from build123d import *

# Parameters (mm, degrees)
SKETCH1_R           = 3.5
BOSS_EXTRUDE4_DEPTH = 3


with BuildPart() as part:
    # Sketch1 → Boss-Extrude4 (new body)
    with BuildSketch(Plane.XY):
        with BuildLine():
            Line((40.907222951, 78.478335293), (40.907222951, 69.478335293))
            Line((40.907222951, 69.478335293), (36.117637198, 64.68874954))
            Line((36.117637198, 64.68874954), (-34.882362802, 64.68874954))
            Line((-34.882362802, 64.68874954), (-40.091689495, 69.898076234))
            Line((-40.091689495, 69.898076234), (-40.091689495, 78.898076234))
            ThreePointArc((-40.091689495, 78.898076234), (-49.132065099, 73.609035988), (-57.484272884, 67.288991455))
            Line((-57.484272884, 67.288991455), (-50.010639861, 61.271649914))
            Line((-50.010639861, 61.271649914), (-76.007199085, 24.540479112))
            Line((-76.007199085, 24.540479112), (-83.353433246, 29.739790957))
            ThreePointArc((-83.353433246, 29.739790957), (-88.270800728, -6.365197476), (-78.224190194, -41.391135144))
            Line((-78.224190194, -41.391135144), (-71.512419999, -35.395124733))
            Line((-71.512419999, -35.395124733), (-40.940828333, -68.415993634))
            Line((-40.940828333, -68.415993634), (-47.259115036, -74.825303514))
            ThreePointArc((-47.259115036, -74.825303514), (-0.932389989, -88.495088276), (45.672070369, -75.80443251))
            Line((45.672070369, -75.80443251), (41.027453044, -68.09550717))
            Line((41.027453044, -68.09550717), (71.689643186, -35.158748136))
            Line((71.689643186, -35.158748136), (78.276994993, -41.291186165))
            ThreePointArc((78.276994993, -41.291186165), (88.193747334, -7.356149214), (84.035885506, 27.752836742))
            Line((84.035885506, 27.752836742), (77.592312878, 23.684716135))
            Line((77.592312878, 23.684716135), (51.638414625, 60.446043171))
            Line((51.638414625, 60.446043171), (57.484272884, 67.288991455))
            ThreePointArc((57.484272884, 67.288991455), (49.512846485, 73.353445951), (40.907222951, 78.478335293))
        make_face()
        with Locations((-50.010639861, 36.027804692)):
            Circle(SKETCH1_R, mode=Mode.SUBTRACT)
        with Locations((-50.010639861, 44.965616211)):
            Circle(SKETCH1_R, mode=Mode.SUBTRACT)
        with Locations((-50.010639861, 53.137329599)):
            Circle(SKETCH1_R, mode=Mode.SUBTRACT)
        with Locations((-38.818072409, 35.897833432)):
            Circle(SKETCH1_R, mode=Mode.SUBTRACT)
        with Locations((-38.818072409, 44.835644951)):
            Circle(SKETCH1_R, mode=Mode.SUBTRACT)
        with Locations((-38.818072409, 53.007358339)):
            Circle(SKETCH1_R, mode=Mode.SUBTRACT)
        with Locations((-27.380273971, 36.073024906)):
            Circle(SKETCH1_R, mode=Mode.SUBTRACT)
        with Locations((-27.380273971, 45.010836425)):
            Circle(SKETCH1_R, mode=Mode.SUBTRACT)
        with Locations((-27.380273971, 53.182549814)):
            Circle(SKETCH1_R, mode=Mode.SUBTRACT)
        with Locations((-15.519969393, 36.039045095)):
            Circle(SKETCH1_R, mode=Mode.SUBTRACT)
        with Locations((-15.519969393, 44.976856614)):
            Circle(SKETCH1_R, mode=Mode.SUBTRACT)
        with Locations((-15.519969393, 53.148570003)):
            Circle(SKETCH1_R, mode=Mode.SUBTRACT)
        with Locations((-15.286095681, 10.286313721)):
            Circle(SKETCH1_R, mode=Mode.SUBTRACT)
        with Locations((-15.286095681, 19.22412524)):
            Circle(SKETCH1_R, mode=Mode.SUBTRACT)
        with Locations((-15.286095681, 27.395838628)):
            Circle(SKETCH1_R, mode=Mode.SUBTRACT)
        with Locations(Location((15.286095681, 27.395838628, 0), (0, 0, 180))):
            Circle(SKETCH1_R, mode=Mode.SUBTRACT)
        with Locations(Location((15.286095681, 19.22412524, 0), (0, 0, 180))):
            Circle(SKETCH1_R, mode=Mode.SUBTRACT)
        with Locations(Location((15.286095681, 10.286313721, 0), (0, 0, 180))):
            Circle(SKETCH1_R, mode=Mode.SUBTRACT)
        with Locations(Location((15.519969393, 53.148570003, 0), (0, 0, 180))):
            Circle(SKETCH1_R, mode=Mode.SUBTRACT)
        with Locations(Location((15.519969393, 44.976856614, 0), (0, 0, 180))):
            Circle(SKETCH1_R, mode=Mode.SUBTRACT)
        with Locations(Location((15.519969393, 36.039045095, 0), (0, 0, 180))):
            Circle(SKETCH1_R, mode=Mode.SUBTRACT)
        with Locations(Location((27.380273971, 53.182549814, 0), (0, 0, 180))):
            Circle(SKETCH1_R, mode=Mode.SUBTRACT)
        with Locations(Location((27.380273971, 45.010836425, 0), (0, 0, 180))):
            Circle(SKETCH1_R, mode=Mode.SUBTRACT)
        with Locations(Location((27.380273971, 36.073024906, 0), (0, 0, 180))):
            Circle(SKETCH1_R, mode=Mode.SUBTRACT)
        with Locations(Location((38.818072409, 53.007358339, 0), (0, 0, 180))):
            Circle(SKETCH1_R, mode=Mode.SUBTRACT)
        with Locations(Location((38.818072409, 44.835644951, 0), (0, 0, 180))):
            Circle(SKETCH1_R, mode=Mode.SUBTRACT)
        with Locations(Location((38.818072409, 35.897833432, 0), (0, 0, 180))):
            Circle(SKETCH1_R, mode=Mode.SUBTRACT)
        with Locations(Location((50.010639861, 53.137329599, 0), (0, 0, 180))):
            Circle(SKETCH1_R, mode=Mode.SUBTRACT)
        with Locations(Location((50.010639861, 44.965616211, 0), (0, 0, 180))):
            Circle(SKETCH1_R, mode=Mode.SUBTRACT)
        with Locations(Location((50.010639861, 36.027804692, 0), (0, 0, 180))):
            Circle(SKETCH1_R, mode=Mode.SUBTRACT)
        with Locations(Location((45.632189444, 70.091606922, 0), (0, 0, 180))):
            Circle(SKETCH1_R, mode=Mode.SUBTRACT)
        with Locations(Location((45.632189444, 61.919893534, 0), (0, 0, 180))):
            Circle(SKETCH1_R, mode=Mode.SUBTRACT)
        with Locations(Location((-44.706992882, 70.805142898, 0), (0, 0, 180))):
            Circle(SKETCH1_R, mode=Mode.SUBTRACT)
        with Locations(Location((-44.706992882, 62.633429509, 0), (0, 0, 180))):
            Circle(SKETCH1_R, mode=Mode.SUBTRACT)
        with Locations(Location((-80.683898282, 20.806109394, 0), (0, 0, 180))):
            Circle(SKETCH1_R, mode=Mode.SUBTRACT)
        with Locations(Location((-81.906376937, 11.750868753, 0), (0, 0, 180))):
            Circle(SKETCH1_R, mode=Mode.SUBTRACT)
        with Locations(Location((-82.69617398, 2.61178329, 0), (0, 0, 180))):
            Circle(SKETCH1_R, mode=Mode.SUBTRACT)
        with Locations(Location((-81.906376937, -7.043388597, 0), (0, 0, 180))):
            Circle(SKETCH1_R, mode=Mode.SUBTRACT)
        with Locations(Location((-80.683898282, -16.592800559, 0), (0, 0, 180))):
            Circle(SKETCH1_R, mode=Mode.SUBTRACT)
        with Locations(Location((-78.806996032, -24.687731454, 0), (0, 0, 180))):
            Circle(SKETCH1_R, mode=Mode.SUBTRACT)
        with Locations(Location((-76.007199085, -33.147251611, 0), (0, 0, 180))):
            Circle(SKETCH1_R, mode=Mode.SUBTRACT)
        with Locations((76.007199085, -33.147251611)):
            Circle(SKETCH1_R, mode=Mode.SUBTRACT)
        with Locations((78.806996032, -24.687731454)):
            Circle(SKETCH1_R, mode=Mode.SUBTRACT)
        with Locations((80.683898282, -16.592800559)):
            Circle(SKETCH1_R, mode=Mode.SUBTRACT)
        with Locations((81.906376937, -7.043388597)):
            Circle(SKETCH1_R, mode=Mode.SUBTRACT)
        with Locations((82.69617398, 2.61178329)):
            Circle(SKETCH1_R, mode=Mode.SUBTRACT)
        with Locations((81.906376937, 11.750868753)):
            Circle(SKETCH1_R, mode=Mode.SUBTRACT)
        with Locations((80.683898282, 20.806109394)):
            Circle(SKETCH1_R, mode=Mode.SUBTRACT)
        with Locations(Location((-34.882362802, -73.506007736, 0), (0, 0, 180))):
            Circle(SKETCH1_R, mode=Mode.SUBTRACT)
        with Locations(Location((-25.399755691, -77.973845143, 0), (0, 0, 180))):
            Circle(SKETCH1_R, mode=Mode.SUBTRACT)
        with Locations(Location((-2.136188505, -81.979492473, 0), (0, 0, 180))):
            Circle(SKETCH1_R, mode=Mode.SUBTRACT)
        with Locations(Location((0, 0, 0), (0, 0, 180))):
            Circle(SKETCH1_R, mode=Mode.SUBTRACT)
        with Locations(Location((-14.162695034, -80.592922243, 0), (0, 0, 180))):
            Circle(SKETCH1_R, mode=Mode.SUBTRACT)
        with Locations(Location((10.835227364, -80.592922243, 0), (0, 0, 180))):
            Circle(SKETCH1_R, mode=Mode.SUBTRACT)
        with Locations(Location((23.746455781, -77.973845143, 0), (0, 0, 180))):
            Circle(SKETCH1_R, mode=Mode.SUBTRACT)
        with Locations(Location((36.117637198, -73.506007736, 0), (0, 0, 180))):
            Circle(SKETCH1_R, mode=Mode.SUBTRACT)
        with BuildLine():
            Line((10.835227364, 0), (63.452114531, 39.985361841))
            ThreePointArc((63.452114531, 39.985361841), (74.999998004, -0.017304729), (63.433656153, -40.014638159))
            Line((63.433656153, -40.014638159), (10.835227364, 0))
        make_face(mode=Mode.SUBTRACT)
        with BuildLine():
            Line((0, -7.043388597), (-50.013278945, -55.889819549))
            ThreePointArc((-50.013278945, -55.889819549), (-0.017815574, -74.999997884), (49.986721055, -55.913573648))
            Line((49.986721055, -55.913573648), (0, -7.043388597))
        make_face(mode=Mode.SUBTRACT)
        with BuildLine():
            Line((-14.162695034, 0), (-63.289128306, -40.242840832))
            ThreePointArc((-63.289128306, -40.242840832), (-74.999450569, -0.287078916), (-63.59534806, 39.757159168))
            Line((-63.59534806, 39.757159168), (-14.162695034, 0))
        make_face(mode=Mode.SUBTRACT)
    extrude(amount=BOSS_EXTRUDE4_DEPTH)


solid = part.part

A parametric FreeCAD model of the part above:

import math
import FreeCAD as App
import Part
import Sketcher
Q = App.Units.Quantity

doc = App.newDocument("Part")
body = doc.addObject("PartDesign::Body", "Body")

sketch1 = body.newObject("Sketcher::SketchObject", "Sketch")
sketch1.AttachmentSupport = (doc.getObject("XY_Plane"), [""])
sketch1.MapMode = "FlatFace"
sketch1.addGeometry([
    Part.LineSegment(App.Vector(40.907223, 78.478335, 0), App.Vector(40.907223, 69.478335, 0)),
    Part.LineSegment(App.Vector(40.907223, 69.478335, 0), App.Vector(36.117637, 64.68875, 0)),
    Part.LineSegment(App.Vector(36.117637, 64.68875, 0), App.Vector(-34.882363, 64.68875, 0)),
    Part.LineSegment(App.Vector(-34.882363, 64.68875, 0), App.Vector(-40.091689, 69.898076, 0)),
    Part.LineSegment(App.Vector(-40.091689, 69.898076, 0), App.Vector(-40.091689, 78.898076, 0)),
    Part.ArcOfCircle(Part.Circle(App.Vector(0, 0, 0), App.Vector(0, 0, 1), 88.5), math.radians(116.937188), math.radians(130.506914)),
    Part.LineSegment(App.Vector(-57.484273, 67.288991, 0), App.Vector(-50.01064, 61.27165, 0)),
    Part.LineSegment(App.Vector(-50.01064, 61.27165, 0), App.Vector(-76.007199, 24.540479, 0)),
    Part.LineSegment(App.Vector(-76.007199, 24.540479, 0), App.Vector(-83.353433, 29.739791, 0)),
    Part.ArcOfCircle(Part.Circle(App.Vector(0, 0, 0), App.Vector(0, 0, 1), 88.5), math.radians(160.364035), math.radians(207.884871)),
    Part.LineSegment(App.Vector(-78.22419, -41.391135, 0), App.Vector(-71.51242, -35.395125, 0)),
    Part.LineSegment(App.Vector(-71.51242, -35.395125, 0), App.Vector(-40.940828, -68.415994, 0)),
    Part.LineSegment(App.Vector(-40.940828, -68.415994, 0), App.Vector(-47.259115, -74.825304, 0)),
    Part.ArcOfCircle(Part.Circle(App.Vector(0, 0, 0), App.Vector(0, 0, 1), 88.5), math.radians(-122.276207), math.radians(-58.931092)),
    Part.LineSegment(App.Vector(45.67207, -75.804433, 0), App.Vector(41.027453, -68.095507, 0)),
    Part.LineSegment(App.Vector(41.027453, -68.095507, 0), App.Vector(71.689643, -35.158748, 0)),
    Part.LineSegment(App.Vector(71.689643, -35.158748, 0), App.Vector(78.276995, -41.291186, 0)),
    Part.ArcOfCircle(Part.Circle(App.Vector(0, 0, 0), App.Vector(0, 0, 1), 88.5), math.radians(-27.811688), math.radians(18.275797)),
    Part.LineSegment(App.Vector(84.035886, 27.752837, 0), App.Vector(77.592313, 23.684716, 0)),
    Part.LineSegment(App.Vector(77.592313, 23.684716, 0), App.Vector(51.638415, 60.446043, 0)),
    Part.LineSegment(App.Vector(51.638415, 60.446043, 0), App.Vector(57.484273, 67.288991, 0)),
    Part.ArcOfCircle(Part.Circle(App.Vector(0, 0, 0), App.Vector(0, 0, 1), 88.5), math.radians(49.493086), math.radians(62.468997)),
    Part.Circle(App.Vector(-25.399756, -77.973845, 0), App.Vector(0, 0, 1), 3.5),
    Part.Circle(App.Vector(-34.882363, -73.506008, 0), App.Vector(0, 0, 1), 3.5),
    Part.Circle(App.Vector(-14.162695, -80.592922, 0), App.Vector(0, 0, 1), 3.5),
    Part.Circle(App.Vector(-2.136189, -81.979492, 0), App.Vector(0, 0, 1), 3.5),
    Part.Circle(App.Vector(-76.007199, -33.147252, 0), App.Vector(0, 0, 1), 3.5),
    Part.Circle(App.Vector(-78.806996, -24.687731, 0), App.Vector(0, 0, 1), 3.5),
    Part.Circle(App.Vector(-80.683898, -16.592801, 0), App.Vector(0, 0, 1), 3.5),
    Part.Circle(App.Vector(-81.906377, -7.043389, 0), App.Vector(0, 0, 1), 3.5),
    Part.LineSegment(App.Vector(-50.013279, -55.88982, 0), App.Vector(0, -7.043389, 0)),
    Part.LineSegment(App.Vector(0, -7.043389, 0), App.Vector(49.986721, -55.913574, 0)),
    Part.ArcOfCircle(Part.Circle(App.Vector(0, 0, 0), App.Vector(0, 0, 1), 75), math.radians(-131.823926), math.radians(-48.203294)),
    Part.Circle(App.Vector(10.835227, -80.592922, 0), App.Vector(0, 0, 1), 3.5),
    Part.Circle(App.Vector(23.746456, -77.973845, 0), App.Vector(0, 0, 1), 3.5),
    Part.Circle(App.Vector(36.117637, -73.506008, 0), App.Vector(0, 0, 1), 3.5),
    Part.Circle(App.Vector(76.007199, -33.147252, 0), App.Vector(0, 0, 1), 3.5),
    Part.Circle(App.Vector(78.806996, -24.687731, 0), App.Vector(0, 0, 1), 3.5),
    Part.Circle(App.Vector(80.683898, -16.592801, 0), App.Vector(0, 0, 1), 3.5),
    Part.Circle(App.Vector(81.906377, -7.043389, 0), App.Vector(0, 0, 1), 3.5),
    Part.Circle(App.Vector(-82.696174, 2.611783, 0), App.Vector(0, 0, 1), 3.5),
    Part.Circle(App.Vector(-81.906377, 11.750869, 0), App.Vector(0, 0, 1), 3.5),
    Part.LineSegment(App.Vector(-63.595348, 39.757159, 0), App.Vector(-14.162695, 0, 0)),
    Part.LineSegment(App.Vector(-14.162695, 0, 0), App.Vector(-63.289128, -40.242841, 0)),
    Part.ArcOfCircle(Part.Circle(App.Vector(0, 0, 0), App.Vector(0, 0, 1), 75), math.radians(147.988095), math.radians(212.45053)),
    Part.Circle(App.Vector(-80.683898, 20.806109, 0), App.Vector(0, 0, 1), 3.5),
    Part.Circle(App.Vector(-15.286096, 10.286314, 0), App.Vector(0, 0, 1), 3.5),
    Part.Circle(App.Vector(-15.286096, 19.224125, 0), App.Vector(0, 0, 1), 3.5),
    Part.Circle(App.Vector(-15.286096, 27.395839, 0), App.Vector(0, 0, 1), 3.5),
    Part.Circle(App.Vector(-50.01064, 36.027805, 0), App.Vector(0, 0, 1), 3.5),
    Part.Circle(App.Vector(-50.01064, 44.965616, 0), App.Vector(0, 0, 1), 3.5),
    Part.Circle(App.Vector(-50.01064, 53.13733, 0), App.Vector(0, 0, 1), 3.5),
    Part.Circle(App.Vector(-44.706993, 62.63343, 0), App.Vector(0, 0, 1), 3.5),
    Part.Circle(App.Vector(-44.706993, 70.805143, 0), App.Vector(0, 0, 1), 3.5),
    Part.Circle(App.Vector(-38.818072, 35.897833, 0), App.Vector(0, 0, 1), 3.5),
    Part.Circle(App.Vector(-27.380274, 36.073025, 0), App.Vector(0, 0, 1), 3.5),
    Part.Circle(App.Vector(-38.818072, 44.835645, 0), App.Vector(0, 0, 1), 3.5),
    Part.Circle(App.Vector(-38.818072, 53.007358, 0), App.Vector(0, 0, 1), 3.5),
    Part.Circle(App.Vector(-27.380274, 45.010836, 0), App.Vector(0, 0, 1), 3.5),
    Part.Circle(App.Vector(-27.380274, 53.18255, 0), App.Vector(0, 0, 1), 3.5),
    Part.Circle(App.Vector(-15.519969, 36.039045, 0), App.Vector(0, 0, 1), 3.5),
    Part.Circle(App.Vector(-15.519969, 44.976857, 0), App.Vector(0, 0, 1), 3.5),
    Part.Circle(App.Vector(-15.519969, 53.14857, 0), App.Vector(0, 0, 1), 3.5),
    Part.Circle(App.Vector(0, 0, 0), App.Vector(0, 0, 1), 3.5),
    Part.Circle(App.Vector(15.286096, 10.286314, 0), App.Vector(0, 0, 1), 3.5),
    Part.LineSegment(App.Vector(63.433656, -40.014638, 0), App.Vector(10.835227, 0, 0)),
    Part.LineSegment(App.Vector(10.835227, 0, 0), App.Vector(63.452115, 39.985362, 0)),
    Part.ArcOfCircle(Part.Circle(App.Vector(0, 0, 0), App.Vector(0, 0, 1), 75), math.radians(-32.244173), math.radians(32.217734)),
    Part.Circle(App.Vector(15.286096, 19.224125, 0), App.Vector(0, 0, 1), 3.5),
    Part.Circle(App.Vector(15.286096, 27.395839, 0), App.Vector(0, 0, 1), 3.5),
    Part.Circle(App.Vector(82.696174, 2.611783, 0), App.Vector(0, 0, 1), 3.5),
    Part.Circle(App.Vector(81.906377, 11.750869, 0), App.Vector(0, 0, 1), 3.5),
    Part.Circle(App.Vector(80.683898, 20.806109, 0), App.Vector(0, 0, 1), 3.5),
    Part.Circle(App.Vector(15.519969, 36.039045, 0), App.Vector(0, 0, 1), 3.5),
    Part.Circle(App.Vector(15.519969, 44.976857, 0), App.Vector(0, 0, 1), 3.5),
    Part.Circle(App.Vector(15.519969, 53.14857, 0), App.Vector(0, 0, 1), 3.5),
    Part.Circle(App.Vector(27.380274, 36.073025, 0), App.Vector(0, 0, 1), 3.5),
    Part.Circle(App.Vector(38.818072, 35.897833, 0), App.Vector(0, 0, 1), 3.5),
    Part.Circle(App.Vector(27.380274, 45.010836, 0), App.Vector(0, 0, 1), 3.5),
    Part.Circle(App.Vector(27.380274, 53.18255, 0), App.Vector(0, 0, 1), 3.5),
    Part.Circle(App.Vector(38.818072, 44.835645, 0), App.Vector(0, 0, 1), 3.5),
    Part.Circle(App.Vector(38.818072, 53.007358, 0), App.Vector(0, 0, 1), 3.5),
    Part.Circle(App.Vector(50.01064, 36.027805, 0), App.Vector(0, 0, 1), 3.5),
    Part.Circle(App.Vector(50.01064, 44.965616, 0), App.Vector(0, 0, 1), 3.5),
    Part.Circle(App.Vector(50.01064, 53.13733, 0), App.Vector(0, 0, 1), 3.5),
    Part.Circle(App.Vector(45.632189, 61.919894, 0), App.Vector(0, 0, 1), 3.5),
    Part.Circle(App.Vector(45.632189, 70.091607, 0), App.Vector(0, 0, 1), 3.5),
], False)
sketch1.addConstraint([
    Sketcher.Constraint("Coincident", 0, 2, 1, 1),
    Sketcher.Constraint("Coincident", 1, 2, 2, 1),
    Sketcher.Constraint("Coincident", 2, 2, 3, 1),
    Sketcher.Constraint("Coincident", 3, 2, 4, 1),
    Sketcher.Constraint("Coincident", 4, 2, 5, 1),
    Sketcher.Constraint("Coincident", 5, 2, 6, 1),
    Sketcher.Constraint("Coincident", 6, 2, 7, 1),
    Sketcher.Constraint("Coincident", 7, 2, 8, 1),
    Sketcher.Constraint("Coincident", 8, 2, 9, 1),
    Sketcher.Constraint("Coincident", 9, 2, 10, 1),
    Sketcher.Constraint("Coincident", 10, 2, 11, 1),
    Sketcher.Constraint("Coincident", 11, 2, 12, 1),
    Sketcher.Constraint("Coincident", 12, 2, 13, 1),
    Sketcher.Constraint("Coincident", 13, 2, 14, 1),
    Sketcher.Constraint("Coincident", 14, 2, 15, 1),
    Sketcher.Constraint("Coincident", 15, 2, 16, 1),
    Sketcher.Constraint("Coincident", 16, 2, 17, 1),
    Sketcher.Constraint("Coincident", 17, 2, 18, 1),
    Sketcher.Constraint("Coincident", 18, 2, 19, 1),
    Sketcher.Constraint("Coincident", 19, 2, 20, 1),
    Sketcher.Constraint("Coincident", 20, 2, 21, 1),
    Sketcher.Constraint("Coincident", 21, 2, 0, 1),
    Sketcher.Constraint("Coincident", 30, 2, 31, 1),
    Sketcher.Constraint("Coincident", 31, 2, 32, 2),
    Sketcher.Constraint("Coincident", 32, 1, 30, 1),
    Sketcher.Constraint("Coincident", 42, 2, 43, 1),
    Sketcher.Constraint("Coincident", 43, 2, 44, 2),
    Sketcher.Constraint("Coincident", 44, 1, 42, 1),
    Sketcher.Constraint("Coincident", 65, 2, 66, 1),
    Sketcher.Constraint("Coincident", 66, 2, 67, 2),
    Sketcher.Constraint("Coincident", 67, 1, 65, 1),
    Sketcher.Constraint("Vertical", 0),
    Sketcher.Constraint("Horizontal", 2),
    Sketcher.Constraint("Vertical", 4),
    Sketcher.Constraint("Coincident", 5, 3, -1, 1),
    Sketcher.Constraint("Coincident", 9, 3, -1, 1),
    Sketcher.Constraint("Coincident", 13, 3, -1, 1),
    Sketcher.Constraint("Coincident", 17, 3, -1, 1),
    Sketcher.Constraint("Coincident", 21, 3, -1, 1),
    Sketcher.Constraint("Coincident", 32, 3, -1, 1),
    Sketcher.Constraint("Coincident", 44, 3, -1, 1),
    Sketcher.Constraint("Coincident", 63, 3, -1, 1),
    Sketcher.Constraint("Coincident", 67, 3, -1, 1),
    Sketcher.Constraint("Equal", 5, 9),
    Sketcher.Constraint("Equal", 9, 13),
    Sketcher.Constraint("Equal", 13, 17),
    Sketcher.Constraint("Equal", 17, 21),
    Sketcher.Constraint("Equal", 22, 23),
    Sketcher.Constraint("Equal", 23, 24),
    Sketcher.Constraint("Equal", 24, 25),
    Sketcher.Constraint("Equal", 25, 26),
    Sketcher.Constraint("Equal", 26, 27),
    Sketcher.Constraint("Equal", 27, 28),
    Sketcher.Constraint("Equal", 28, 29),
    Sketcher.Constraint("Equal", 29, 33),
    Sketcher.Constraint("Equal", 33, 34),
    Sketcher.Constraint("Equal", 34, 35),
    Sketcher.Constraint("Equal", 35, 36),
    Sketcher.Constraint("Equal", 36, 37),
    Sketcher.Constraint("Equal", 37, 38),
    Sketcher.Constraint("Equal", 38, 39),
    Sketcher.Constraint("Equal", 39, 40),
    Sketcher.Constraint("Equal", 40, 41),
    Sketcher.Constraint("Equal", 32, 44),
    Sketcher.Constraint("Equal", 41, 45),
    Sketcher.Constraint("Equal", 45, 46),
    Sketcher.Constraint("Equal", 46, 47),
    Sketcher.Constraint("Equal", 47, 48),
    Sketcher.Constraint("Equal", 48, 49),
    Sketcher.Constraint("Equal", 49, 50),
    Sketcher.Constraint("Equal", 50, 51),
    Sketcher.Constraint("Equal", 51, 52),
    Sketcher.Constraint("Equal", 52, 53),
    Sketcher.Constraint("Equal", 53, 54),
    Sketcher.Constraint("Equal", 54, 55),
    Sketcher.Constraint("Equal", 55, 56),
    Sketcher.Constraint("Equal", 56, 57),
    Sketcher.Constraint("Equal", 57, 58),
    Sketcher.Constraint("Equal", 58, 59),
    Sketcher.Constraint("Equal", 59, 60),
    Sketcher.Constraint("Equal", 60, 61),
    Sketcher.Constraint("Equal", 61, 62),
    Sketcher.Constraint("Equal", 62, 63),
    Sketcher.Constraint("Equal", 63, 64),
    Sketcher.Constraint("Equal", 44, 67),
    Sketcher.Constraint("Equal", 64, 68),
    Sketcher.Constraint("Equal", 68, 69),
    Sketcher.Constraint("Equal", 69, 70),
    Sketcher.Constraint("Equal", 70, 71),
    Sketcher.Constraint("Equal", 71, 72),
    Sketcher.Constraint("Equal", 72, 73),
    Sketcher.Constraint("Equal", 73, 74),
    Sketcher.Constraint("Equal", 74, 75),
    Sketcher.Constraint("Equal", 75, 76),
    Sketcher.Constraint("Equal", 76, 77),
    Sketcher.Constraint("Equal", 77, 78),
    Sketcher.Constraint("Equal", 78, 79),
    Sketcher.Constraint("Equal", 79, 80),
    Sketcher.Constraint("Equal", 80, 81),
    Sketcher.Constraint("Equal", 81, 82),
    Sketcher.Constraint("Equal", 82, 83),
    Sketcher.Constraint("Equal", 83, 84),
    Sketcher.Constraint("Equal", 84, 85),
    Sketcher.Constraint("Equal", 85, 86),
    Sketcher.Constraint("Symmetric", 26, 3, 36, 3, -2),
    Sketcher.Constraint("Symmetric", 27, 3, 37, 3, -2),
    Sketcher.Constraint("Symmetric", 28, 3, 38, 3, -2),
    Sketcher.Constraint("Symmetric", 29, 3, 39, 3, -2),
    Sketcher.Constraint("Symmetric", 46, 3, 64, 3, -2),
    Sketcher.Constraint("Symmetric", 47, 3, 68, 3, -2),
    Sketcher.Constraint("Symmetric", 48, 3, 69, 3, -2),
    Sketcher.Constraint("Symmetric", 40, 3, 70, 3, -2),
    Sketcher.Constraint("Symmetric", 41, 3, 71, 3, -2),
    Sketcher.Constraint("Symmetric", 45, 3, 72, 3, -2),
    Sketcher.Constraint("Symmetric", 60, 3, 73, 3, -2),
    Sketcher.Constraint("Symmetric", 61, 3, 74, 3, -2),
    Sketcher.Constraint("Symmetric", 62, 3, 75, 3, -2),
    Sketcher.Constraint("Symmetric", 55, 3, 76, 3, -2),
    Sketcher.Constraint("Symmetric", 54, 3, 77, 3, -2),
    Sketcher.Constraint("Symmetric", 58, 3, 78, 3, -2),
    Sketcher.Constraint("Symmetric", 59, 3, 79, 3, -2),
    Sketcher.Constraint("Symmetric", 56, 3, 80, 3, -2),
    Sketcher.Constraint("Symmetric", 57, 3, 81, 3, -2),
    Sketcher.Constraint("Symmetric", 49, 3, 82, 3, -2),
    Sketcher.Constraint("Symmetric", 50, 3, 83, 3, -2),
    Sketcher.Constraint("Symmetric", 51, 3, 84, 3, -2),
    Sketcher.Constraint("PointOnObject", 30, 2, -2),
    Sketcher.Constraint("PointOnObject", 42, 2, -1),
    Sketcher.Constraint("PointOnObject", 65, 2, -1),
    Sketcher.Constraint("Perpendicular", 1, 3),
    Sketcher.Constraint("Perpendicular", 7, 8),
    Sketcher.Constraint("Perpendicular", 15, 16),
    Sketcher.Constraint("Horizontal", 24, 3, 33, 3),
    Sketcher.Constraint("Horizontal", 22, 3, 34, 3),
    Sketcher.Constraint("Horizontal", 23, 3, 35, 3),
    Sketcher.Constraint("Horizontal", 5, 2, 20, 2),
    Sketcher.Constraint("Horizontal", 39, 3, 30, 2),
    Sketcher.Constraint("Vertical", 29, 3, 41, 3),
    Sketcher.Constraint("Vertical", 28, 3, 45, 3),
    Sketcher.Constraint("Vertical", 46, 3, 47, 3),
    Sketcher.Constraint("Vertical", 47, 3, 48, 3),
    Sketcher.Constraint("Vertical", 49, 3, 50, 3),
    Sketcher.Constraint("Vertical", 50, 3, 51, 3),
    Sketcher.Constraint("Vertical", 52, 3, 53, 3),
    Sketcher.Constraint("Vertical", 54, 3, 56, 3),
    Sketcher.Constraint("Vertical", 56, 3, 57, 3),
    Sketcher.Constraint("Vertical", 55, 3, 58, 3),
    Sketcher.Constraint("Vertical", 58, 3, 59, 3),
    Sketcher.Constraint("Vertical", 60, 3, 61, 3),
    Sketcher.Constraint("Vertical", 61, 3, 62, 3),
    Sketcher.Constraint("Vertical", 85, 3, 86, 3),
    Sketcher.Constraint("Vertical", 35, 3, 1, 2),
    Sketcher.Constraint("Vertical", 23, 3, 2, 2),
    Sketcher.Constraint("Vertical", 51, 3, 6, 2),
    Sketcher.Constraint("Vertical", 26, 3, 7, 2),
    Sketcher.Constraint("Vertical", 24, 3, 42, 2),
    Sketcher.Constraint("Vertical", 33, 3, 65, 2),
    Sketcher.Constraint("Equal", 0, 4),
    Sketcher.Constraint("Equal", 8, 10),
    Sketcher.Constraint("Equal", 7, 11),
    Sketcher.Constraint("Equal", 10, 12),
    Sketcher.Constraint("Equal", 12, 14),
    Sketcher.Constraint("Equal", 11, 15),
    Sketcher.Constraint("Equal", 14, 16),
    Sketcher.Constraint("Equal", 15, 19),
    Sketcher.Constraint("Equal", 16, 20),
    Sketcher.Constraint("Diameter", 22, 7.0),
    Sketcher.Constraint("Radius", 32, 75.0),
    Sketcher.Constraint("Radius", 5, 88.5),
    Sketcher.Constraint("DistanceX", 2, 2, 2, 1, 71.0),
    Sketcher.Constraint("DistanceY", 0, 2, 0, 1, 9.0),
    Sketcher.Constraint("Angle", 1, Q("-135 deg")),
    Sketcher.Constraint("Distance", 7, 45.0),
    Sketcher.Constraint("Distance", 8, 9.0),
    Sketcher.Constraint("Distance", 3, 7.3671),
    Sketcher.Constraint("DistanceX", 26, 3, -1, 1, 76.007199),
    Sketcher.Constraint("DistanceX", 28, 3, -1, 1, 80.683898),
    Sketcher.Constraint("DistanceY", 28, 3, -1, 1, 16.592801),
    Sketcher.Constraint("Distance", 30, 69.90924),
    Sketcher.Constraint("Distance", 42, 63.436731),
    Sketcher.Constraint("Distance", 43, 63.50506),
    Sketcher.Constraint("Distance", 66, 66.08605),
    Sketcher.Constraint("DistanceX", 25, 3, -1, 1, 2.136189),
    Sketcher.Constraint("DistanceY", 26, 3, -1, 1, 33.147252),
    Sketcher.Constraint("DistanceY", 27, 3, -1, 1, 24.687731),
    Sketcher.Constraint("DistanceY", 29, 3, -1, 1, 7.043389),
    Sketcher.Constraint("DistanceY", -1, 1, 41, 3, 11.750869),
    Sketcher.Constraint("DistanceY", -1, 1, 45, 3, 20.806109),
    Sketcher.Constraint("DistanceY", -1, 1, 48, 3, 27.395839),
    Sketcher.Constraint("DistanceX", 49, 3, -1, 1, 50.01064),
    Sketcher.Constraint("DistanceY", -1, 1, 51, 3, 53.13733),
    Sketcher.Constraint("DistanceY", -1, 1, 52, 3, 62.63343),
    Sketcher.Constraint("DistanceY", -1, 1, 57, 3, 53.007358),
    Sketcher.Constraint("DistanceY", -1, 1, 59, 3, 53.18255),
    Sketcher.Constraint("DistanceX", 60, 3, -1, 1, 15.519969),
    Sketcher.Constraint("DistanceY", -1, 1, 62, 3, 53.14857),
    Sketcher.Constraint("DistanceX", -1, 1, 85, 3, 45.632189),
    Sketcher.Constraint("DistanceY", -1, 1, 1, 2, 64.68875),
    Sketcher.Constraint("DistanceY", -1, 1, 5, 2, 67.288991),
    Sketcher.Constraint("DistanceX", 9, 2, -1, 1, 78.22419),
    Sketcher.Constraint("DistanceX", 10, 2, -1, 1, 71.51242),
    Sketcher.Constraint("DistanceX", 11, 2, -1, 1, 40.940828),
    Sketcher.Constraint("DistanceX", -1, 1, 13, 2, 45.67207),
    Sketcher.Constraint("DistanceY", 15, 2, -1, 1, 35.158748),
    Sketcher.Constraint("DistanceX", -1, 1, 31, 2, 49.986721),
    Sketcher.Constraint("DistanceX", 43, 2, -1, 1, 63.289128),
    Sketcher.Constraint("DistanceY", -1, 1, 66, 2, 39.985362),
    Sketcher.Constraint("DistanceY", 67, 1, -1, 1, 40.014638),
    Sketcher.Constraint("Distance", 18, 7.620317),
    Sketcher.Constraint("DistanceX", 22, 3, -1, 1, 25.399756),
    Sketcher.Constraint("DistanceY", 22, 3, -1, 1, 77.973845),
    Sketcher.Constraint("DistanceY", 23, 3, -1, 1, 73.506008),
    Sketcher.Constraint("DistanceY", 24, 3, -1, 1, 80.592922),
    Sketcher.Constraint("DistanceY", 25, 3, -1, 1, 81.979492),
    Sketcher.Constraint("DistanceX", 27, 3, -1, 1, 78.806996),
    Sketcher.Constraint("DistanceX", 29, 3, -1, 1, 81.906377),
    Sketcher.Constraint("DistanceX", -1, 1, 34, 3, 23.746456),
    Sketcher.Constraint("DistanceX", 40, 3, -1, 1, 82.696174),
    Sketcher.Constraint("DistanceY", -1, 1, 40, 3, 2.611783),
    Sketcher.Constraint("DistanceX", 46, 3, -1, 1, 15.286096),
    Sketcher.Constraint("DistanceY", -1, 1, 46, 3, 10.286314),
    Sketcher.Constraint("DistanceY", -1, 1, 47, 3, 19.224125),
    Sketcher.Constraint("DistanceY", -1, 1, 49, 3, 36.027805),
    Sketcher.Constraint("DistanceY", -1, 1, 50, 3, 44.965616),
    Sketcher.Constraint("DistanceX", 52, 3, -1, 1, 44.706993),
    Sketcher.Constraint("DistanceY", -1, 1, 53, 3, 70.805143),
    Sketcher.Constraint("DistanceX", 54, 3, -1, 1, 38.818072),
    Sketcher.Constraint("DistanceY", -1, 1, 54, 3, 35.897833),
    Sketcher.Constraint("DistanceX", 55, 3, -1, 1, 27.380274),
    Sketcher.Constraint("DistanceY", -1, 1, 55, 3, 36.073025),
    Sketcher.Constraint("DistanceY", -1, 1, 56, 3, 44.835645),
    Sketcher.Constraint("DistanceY", -1, 1, 58, 3, 45.010836),
    Sketcher.Constraint("DistanceY", -1, 1, 60, 3, 36.039045),
    Sketcher.Constraint("DistanceY", -1, 1, 61, 3, 44.976857),
    Sketcher.Constraint("DistanceY", -1, 1, 85, 3, 61.919894),
    Sketcher.Constraint("DistanceY", -1, 1, 86, 3, 70.091607),
    Sketcher.Constraint("DistanceX", -1, 1, 17, 2, 84.035886),
    Sketcher.Constraint("DistanceX", -1, 1, 18, 2, 77.592313),
])
pad1 = body.newObject("PartDesign::Pad", "Pad")
pad1.Profile = sketch1
pad1.Length = 3

doc.recompute()
